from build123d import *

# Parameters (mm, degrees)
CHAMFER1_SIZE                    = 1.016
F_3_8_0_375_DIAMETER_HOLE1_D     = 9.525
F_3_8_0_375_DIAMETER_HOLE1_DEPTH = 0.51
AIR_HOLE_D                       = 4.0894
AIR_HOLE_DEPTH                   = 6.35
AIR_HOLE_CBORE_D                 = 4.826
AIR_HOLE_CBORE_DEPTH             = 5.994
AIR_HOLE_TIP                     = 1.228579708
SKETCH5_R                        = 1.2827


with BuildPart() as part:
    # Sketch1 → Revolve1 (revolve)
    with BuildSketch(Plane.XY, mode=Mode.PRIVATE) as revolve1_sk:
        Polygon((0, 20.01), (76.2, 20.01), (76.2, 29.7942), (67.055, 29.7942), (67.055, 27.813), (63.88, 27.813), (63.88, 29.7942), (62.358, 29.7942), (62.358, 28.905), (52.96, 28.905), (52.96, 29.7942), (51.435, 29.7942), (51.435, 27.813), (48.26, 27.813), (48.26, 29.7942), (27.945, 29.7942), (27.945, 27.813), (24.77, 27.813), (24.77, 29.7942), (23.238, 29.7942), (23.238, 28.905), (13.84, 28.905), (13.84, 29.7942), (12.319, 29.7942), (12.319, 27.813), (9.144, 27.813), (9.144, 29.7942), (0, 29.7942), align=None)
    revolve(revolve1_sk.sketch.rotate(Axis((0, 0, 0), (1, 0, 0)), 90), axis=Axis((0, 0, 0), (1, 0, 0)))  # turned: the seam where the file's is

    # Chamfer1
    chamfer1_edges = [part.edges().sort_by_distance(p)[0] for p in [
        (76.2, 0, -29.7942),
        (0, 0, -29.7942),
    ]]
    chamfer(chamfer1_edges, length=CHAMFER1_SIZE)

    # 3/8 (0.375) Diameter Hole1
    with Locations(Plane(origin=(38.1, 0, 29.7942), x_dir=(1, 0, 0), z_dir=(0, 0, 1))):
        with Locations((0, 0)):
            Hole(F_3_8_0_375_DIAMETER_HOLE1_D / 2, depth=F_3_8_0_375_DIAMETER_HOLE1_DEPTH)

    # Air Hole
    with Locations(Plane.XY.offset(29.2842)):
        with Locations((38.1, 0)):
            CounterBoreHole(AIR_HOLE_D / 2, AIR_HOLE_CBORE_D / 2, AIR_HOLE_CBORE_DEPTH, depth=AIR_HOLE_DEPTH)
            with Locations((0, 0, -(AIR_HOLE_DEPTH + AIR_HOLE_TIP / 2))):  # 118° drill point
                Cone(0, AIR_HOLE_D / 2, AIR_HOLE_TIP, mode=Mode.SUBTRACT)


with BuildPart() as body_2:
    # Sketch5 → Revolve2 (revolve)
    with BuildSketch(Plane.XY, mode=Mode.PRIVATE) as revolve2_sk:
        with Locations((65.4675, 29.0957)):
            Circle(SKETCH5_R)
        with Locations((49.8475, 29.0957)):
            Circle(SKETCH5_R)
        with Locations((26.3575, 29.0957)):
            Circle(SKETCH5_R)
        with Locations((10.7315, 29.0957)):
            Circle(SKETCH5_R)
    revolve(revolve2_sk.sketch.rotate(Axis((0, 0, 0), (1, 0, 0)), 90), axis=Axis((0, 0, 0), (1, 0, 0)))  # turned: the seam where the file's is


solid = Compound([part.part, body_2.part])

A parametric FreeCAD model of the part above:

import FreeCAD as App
import Part
import Sketcher
Q = App.Units.Quantity


def edges_at(feature, points):
    """Names of the edges that pass closest to the given points."""
    edges = feature.Shape.Edges
    near = lambda p: min(range(len(edges)), key=lambda i: edges[i].distToShape(Part.Vertex(*p))[0])
    return sorted({f"Edge{near(p) + 1}" for p in points})

doc = App.newDocument("Part")
params = doc.addObject("Spreadsheet::Sheet", "Params")
for row, (alias, value) in enumerate([
    ("sketch1_width", "3 in"),
    ("sketch1_width2", "0.37 in"),
    ("sketch1_width3", "0.36 in"),
    ("sketch1_width4", "0.125 in"),
    ("sketch1_height", "0.078 in"),
    ("revolution_angle", "360 deg"),
    ("chamfer_size", "0.04 in"),
    ("sketch2_diameter", "0.375 in"),
    ("hole_diameter", "0.375 in"),
    ("hole_depth", "0.51 mm"),
    ("sketch3_diameter", "0.161 in"),
    ("hole2_diameter", "0.161 in"),
    ("hole2_depth", "0.25 in"),
    ("hole2_cbore_diameter", "0.19 in"),
    ("hole2_cbore_depth", "5.994 mm"),
    ("sketch4_diameter", "0.101 in"),
    ("revolution2_angle", "360 deg"),
], start=1):
    params.set(f"A{row}", alias)
    params.set(f"B{row}", "=" + value)
    params.setAlias(f"B{row}", alias)

body = doc.addObject("PartDesign::Body", "Body")

sketch1 = doc.addObject("Sketcher::SketchObject", "Sketch")
body.addObject(sketch1)
sketch1.AttachmentSupport = (doc.XY_Plane, [""])
sketch1.MapMode = "FlatFace"
sketch1.addGeometry(Part.LineSegment(App.Vector(0, 20.01, 0), App.Vector(76.2, 20.01, 0)), False)
sketch1.addGeometry(Part.LineSegment(App.Vector(76.2, 20.01, 0), App.Vector(76.2, 29.7942, 0)), False)
sketch1.addGeometry(Part.LineSegment(App.Vector(76.2, 29.7942, 0), App.Vector(67.055, 29.7942, 0)), False)
sketch1.addGeometry(Part.LineSegment(App.Vector(67.055, 29.7942, 0), App.Vector(67.055, 27.813, 0)), False)
sketch1.addGeometry(Part.LineSegment(App.Vector(67.055, 27.813, 0), App.Vector(63.88, 27.813, 0)), False)
sketch1.addGeometry(Part.LineSegment(App.Vector(63.88, 27.813, 0), App.Vector(63.88, 29.7942, 0)), False)
sketch1.addGeometry(Part.LineSegment(App.Vector(63.88, 29.7942, 0), App.Vector(62.358, 29.7942, 0)), False)
sketch1.addGeometry(Part.LineSegment(App.Vector(62.358, 29.7942, 0), App.Vector(62.358, 28.905, 0)), False)
sketch1.addGeometry(Part.LineSegment(App.Vector(62.358, 28.905, 0), App.Vector(52.96, 28.905, 0)), False)
sketch1.addGeometry(Part.LineSegment(App.Vector(52.96, 28.905, 0), App.Vector(52.96, 29.7942, 0)), False)
sketch1.addGeometry(Part.LineSegment(App.Vector(52.96, 29.7942, 0), App.Vector(51.435, 29.7942, 0)), False)
sketch1.addGeometry(Part.LineSegment(App.Vector(51.435, 29.7942, 0), App.Vector(51.435, 27.813, 0)), False)
sketch1.addGeometry(Part.LineSegment(App.Vector(51.435, 27.813, 0), App.Vector(48.26, 27.813, 0)), False)
sketch1.addGeometry(Part.LineSegment(App.Vector(48.26, 27.813, 0), App.Vector(48.26, 29.7942, 0)), False)
sketch1.addGeometry(Part.LineSegment(App.Vector(48.26, 29.7942, 0), App.Vector(27.945, 29.7942, 0)), False)
sketch1.addGeometry(Part.LineSegment(App.Vector(27.945, 29.7942, 0), App.Vector(27.945, 27.813, 0)), False)
sketch1.addGeometry(Part.LineSegment(App.Vector(27.945, 27.813, 0), App.Vector(24.77, 27.813, 0)), False)
sketch1.addGeometry(Part.LineSegment(App.Vector(24.77, 27.813, 0), App.Vector(24.77, 29.7942, 0)), False)
sketch1.addGeometry(Part.LineSegment(App.Vector(24.77, 29.7942, 0), App.Vector(23.238, 29.7942, 0)), False)
sketch1.addGeometry(Part.LineSegment(App.Vector(23.238, 29.7942, 0), App.Vector(23.238, 28.905, 0)), False)
sketch1.addGeometry(Part.LineSegment(App.Vector(23.238, 28.905, 0), App.Vector(13.84, 28.905, 0)), False)
sketch1.addGeometry(Part.LineSegment(App.Vector(13.84, 28.905, 0), App.Vector(13.84, 29.7942, 0)), False)
sketch1.addGeometry(Part.LineSegment(App.Vector(13.84, 29.7942, 0), App.Vector(12.319, 29.7942, 0)), False)
sketch1.addGeometry(Part.LineSegment(App.Vector(12.319, 29.7942, 0), App.Vector(12.319, 27.813, 0)), False)
sketch1.addGeometry(Part.LineSegment(App.Vector(12.319, 27.813, 0), App.Vector(9.144, 27.813, 0)), False)
sketch1.addGeometry(Part.LineSegment(App.Vector(9.144, 27.813, 0), App.Vector(9.144, 29.7942, 0)), False)
sketch1.addGeometry(Part.LineSegment(App.Vector(9.144, 29.7942, 0), App.Vector(0, 29.7942, 0)), False)
sketch1.addGeometry(Part.LineSegment(App.Vector(0, 29.7942, 0), App.Vector(0, 20.01, 0)), False)
sketch1.addConstraint(Sketcher.Constraint("Coincident", 0, 2, 1, 1))
sketch1.addConstraint(Sketcher.Constraint("Coincident", 1, 2, 2, 1))
sketch1.addConstraint(Sketcher.Constraint("Coincident", 2, 2, 3, 1))
sketch1.addConstraint(Sketcher.Constraint("Coincident", 3, 2, 4, 1))
sketch1.addConstraint(Sketcher.Constraint("Coincident", 4, 2, 5, 1))
sketch1.addConstraint(Sketcher.Constraint("Coincident", 5, 2, 6, 1))
sketch1.addConstraint(Sketcher.Constraint("Coincident", 6, 2, 7, 1))
sketch1.addConstraint(Sketcher.Constraint("Coincident", 7, 2, 8, 1))
sketch1.addConstraint(Sketcher.Constraint("Coincident", 8, 2, 9, 1))
sketch1.addConstraint(Sketcher.Constraint("Coincident", 9, 2, 10, 1))
sketch1.addConstraint(Sketcher.Constraint("Coincident", 10, 2, 11, 1))
sketch1.addConstraint(Sketcher.Constraint("Coincident", 11, 2, 12, 1))
sketch1.addConstraint(Sketcher.Constraint("Coincident", 12, 2, 13, 1))
sketch1.addConstraint(Sketcher.Constraint("Coincident", 13, 2, 14, 1))
sketch1.addConstraint(Sketcher.Constraint("Coincident", 14, 2, 15, 1))
sketch1.addConstraint(Sketcher.Constraint("Coincident", 15, 2, 16, 1))
sketch1.addConstraint(Sketcher.Constraint("Coincident", 16, 2, 17, 1))
sketch1.addConstraint(Sketcher.Constraint("Coincident", 17, 2, 18, 1))
sketch1.addConstraint(Sketcher.Constraint("Coincident", 18, 2, 19, 1))
sketch1.addConstraint(Sketcher.Constraint("Coincident", 19, 2, 20, 1))
sketch1.addConstraint(Sketcher.Constraint("Coincident", 20, 2, 21, 1))
sketch1.addConstraint(Sketcher.Constraint("Coincident", 21, 2, 22, 1))
sketch1.addConstraint(Sketcher.Constraint("Coincident", 22, 2, 23, 1))
sketch1.addConstraint(Sketcher.Constraint("Coincident", 23, 2, 24, 1))
sketch1.addConstraint(Sketcher.Constraint("Coincident", 24, 2, 25, 1))
sketch1.addConstraint(Sketcher.Constraint("Coincident", 25, 2, 26, 1))
sketch1.addConstraint(Sketcher.Constraint("Coincident", 26, 2, 27, 1))
sketch1.addConstraint(Sketcher.Constraint("Coincident", 27, 2, 0, 1))
sketch1.addConstraint(Sketcher.Constraint("Horizontal", 0))
sketch1.addConstraint(Sketcher.Constraint("Vertical", 1))
sketch1.addConstraint(Sketcher.Constraint("Horizontal", 2))
sketch1.addConstraint(Sketcher.Constraint("Vertical", 3))
sketch1.addConstraint(Sketcher.Constraint("Horizontal", 4))
sketch1.addConstraint(Sketcher.Constraint("Vertical", 5))
sketch1.addConstraint(Sketcher.Constraint("Horizontal", 6))
sketch1.addConstraint(Sketcher.Constraint("Vertical", 7))
sketch1.addConstraint(Sketcher.Constraint("Horizontal", 8))
sketch1.addConstraint(Sketcher.Constraint("Vertical", 9))
sketch1.addConstraint(Sketcher.Constraint("Horizontal", 10))
sketch1.addConstraint(Sketcher.Constraint("Vertical", 11))
sketch1.addConstraint(Sketcher.Constraint("Horizontal", 12))
sketch1.addConstraint(Sketcher.Constraint("Vertical", 13))
sketch1.addConstraint(Sketcher.Constraint("Horizontal", 14))
sketch1.addConstraint(Sketcher.Constraint("Vertical", 15))
sketch1.addConstraint(Sketcher.Constraint("Horizontal", 16))
sketch1.addConstraint(Sketcher.Constraint("Vertical", 17))
sketch1.addConstraint(Sketcher.Constraint("Horizontal", 18))
sketch1.addConstraint(Sketcher.Constraint("Vertical", 19))
sketch1.addConstraint(Sketcher.Constraint("Horizontal", 20))
sketch1.addConstraint(Sketcher.Constraint("Vertical", 21))
sketch1.addConstraint(Sketcher.Constraint("Horizontal", 22))
sketch1.addConstraint(Sketcher.Constraint("Vertical", 23))
sketch1.addConstraint(Sketcher.Constraint("Horizontal", 24))
sketch1.addConstraint(Sketcher.Constraint("Vertical", 25))
sketch1.addConstraint(Sketcher.Constraint("Horizontal", 26))
sketch1.addConstraint(Sketcher.Constraint("Vertical", 27))
sketch1.addConstraint(Sketcher.Constraint("PointOnObject", 26, 2, -2))
sketch1.addConstraint(Sketcher.Constraint("Horizontal", 2, 2, 5, 2))
sketch1.addConstraint(Sketcher.Constraint("Horizontal", 6, 2, 9, 2))
sketch1.addConstraint(Sketcher.Constraint("Horizontal", 4, 2, 11, 2))
sketch1.addConstraint(Sketcher.Constraint("Horizontal", 10, 2, 13, 2))
sketch1.addConstraint(Sketcher.Constraint("Horizontal", 12, 2, 15, 2))
sketch1.addConstraint(Sketcher.Constraint("Horizontal", 14, 2, 17, 2))
sketch1.addConstraint(Sketcher.Constraint("Horizontal", 8, 2, 19, 2))
sketch1.addConstraint(Sketcher.Constraint("Horizontal", 18, 2, 21, 2))
sketch1.addConstraint(Sketcher.Constraint("Horizontal", 16, 2, 23, 2))
sketch1.addConstraint(Sketcher.Constraint("Horizontal", 22, 2, 25, 2))
sketch1.addConstraint(Sketcher.Constraint("Equal", 4, 12))
sketch1.addConstraint(Sketcher.Constraint("Equal", 12, 16))
sketch1.addConstraint(Sketcher.Constraint("Equal", 8, 20))
sketch1.addConstraint(Sketcher.Constraint("Equal", 16, 24))
sketch1.addConstraint(Sketcher.Constraint("DistanceX", 0, 1, 0, 2, Q("3 in")))
sketch1.addConstraint(Sketcher.Constraint("DistanceX", 8, 2, 8, 1, Q("0.37 in")))
sketch1.addConstraint(Sketcher.Constraint("DistanceX", 26, 2, 26, 1, Q("0.36 in")))
sketch1.addConstraint(Sketcher.Constraint("DistanceX", -1, 1, 12, 2, Q("1.9 in")))
sketch1.addConstraint(Sketcher.Constraint("DistanceX", 4, 2, 4, 1, Q("0.125 in")))
sketch1.addConstraint(Sketcher.Constraint("DistanceY", 3, 2, 3, 1, Q("0.078 in")))
sketch1.addConstraint(Sketcher.Constraint("DistanceY", -1, 1, 1, 2, Q("1.173 in")))
sketch1.addConstraint(Sketcher.Constraint("DistanceX", 2, 2, 2, 1, 9.145))
sketch1.addConstraint(Sketcher.Constraint("DistanceX", 6, 2, 6, 1, 1.522))
sketch1.addConstraint(Sketcher.Constraint("DistanceX", 14, 2, 14, 1, 20.315))
sketch1.addConstraint(Sketcher.Constraint("DistanceX", 18, 2, 18, 1, 1.532))
sketch1.addConstraint(Sketcher.Constraint("DistanceY", 1, 1, 1, 2, 9.7842))
sketch1.addConstraint(Sketcher.Constraint("DistanceY", 7, 2, 7, 1, 0.8892))
sketch1.setExpression("Constraints[71]", "Params.sketch1_width")
sketch1.setExpression("Constraints[72]", "Params.sketch1_width2")
sketch1.setExpression("Constraints[73]", "Params.sketch1_width3")
sketch1.setExpression("Constraints[75]", "Params.sketch1_width4")
sketch1.setExpression("Constraints[76]", "Params.sketch1_height")
revolution = doc.addObject("PartDesign::Revolution", "Revolution")
body.addObject(revolution)
revolution.Profile = sketch1
revolution.ReferenceAxis = (sketch1, ["H_Axis"])
revolution.setExpression("Angle", "Params.revolution_angle")
doc.recompute()

chamfer = doc.addObject("PartDesign::Chamfer", "Chamfer")
body.addObject(chamfer)
chamfer.Base = (revolution, edges_at(revolution, [(76.2, 0, -29.794), (0, 0, -29.794)]))
chamfer.setExpression("Size", "Params.chamfer_size")

sketch2 = doc.addObject("Sketcher::SketchObject", "Sketch001")
body.addObject(sketch2)
sketch2.AttachmentSupport = (doc.XY_Plane, [""])
sketch2.MapMode = "FlatFace"
sketch2.AttachmentOffset = App.Placement(App.Vector(0, 0, 1.173 * 25.4), App.Rotation())
sketch2.addGeometry(Part.Circle(App.Vector(38.1, 0, 0), App.Vector(0, 0, 1), 4.7625), False)
sketch2.addConstraint(Sketcher.Constraint("PointOnObject", 0, 3, -1))
sketch2.addConstraint(Sketcher.Constraint("Diameter", 0, Q("0.375 in")))
sketch2.addConstraint(Sketcher.Constraint("DistanceX", -1, 1, 0, 3, Q("1.5 in")))
sketch2.setExpression("Constraints[1]", "Params.sketch2_diameter")
doc.recompute()
hole = doc.addObject("PartDesign::Hole", "Hole")
body.addObject(hole)
hole.Profile = sketch2
hole.ThreadType = "None"
hole.setExpression("Diameter", "Params.hole_diameter")
hole.DepthType = "Dimension"
hole.setExpression("Depth", "Params.hole_depth")
hole.DrillPoint = "Flat"

sketch3 = doc.addObject("Sketcher::SketchObject", "Sketch002")
body.addObject(sketch3)
sketch3.AttachmentSupport = (doc.XY_Plane, [""])
sketch3.MapMode = "FlatFace"
sketch3.AttachmentOffset = App.Placement(App.Vector(0, 0, 29.2842), App.Rotation())
sketch3.addGeometry(Part.Circle(App.Vector(38.1, 0, 0), App.Vector(0, 0, 1), 2.0447), False)
sketch3.addConstraint(Sketcher.Constraint("PointOnObject", 0, 3, -1))
sketch3.addConstraint(Sketcher.Constraint("Diameter", 0, Q("0.161 in")))
sketch3.addConstraint(Sketcher.Constraint("DistanceX", -1, 1, 0, 3, Q("1.5 in")))
sketch3.setExpression("Constraints[1]", "Params.sketch3_diameter")
doc.recompute()
hole2 = doc.addObject("PartDesign::Hole", "Hole001")
body.addObject(hole2)
hole2.Profile = sketch3
hole2.ThreadType = "None"
hole2.setExpression("Diameter", "Params.hole2_diameter")
hole2.DepthType = "Dimension"
hole2.setExpression("Depth", "Params.hole2_depth")
hole2.DrillPoint = "Angled"
hole2.DrillPointAngle = 118
hole2.HoleCutType = "Counterbore"
hole2.setExpression("HoleCutDiameter", "Params.hole2_cbore_diameter")
hole2.setExpression("HoleCutDepth", "Params.hole2_cbore_depth")
body2 = doc.addObject("PartDesign::Body", "Body001")
body2.AllowCompound = True

sketch4 = doc.addObject("Sketcher::SketchObject", "Sketch003")
body2.addObject(sketch4)
sketch4.AttachmentSupport = (doc.getObject("XY_Plane001"), [""])
sketch4.MapMode = "FlatFace"
sketch4.addGeometry(Part.Circle(App.Vector(65.4675, 29.0957, 0), App.Vector(0, 0, 1), 1.2827), False)
sketch4.addGeometry(Part.Circle(App.Vector(49.8475, 29.0957, 0), App.Vector(0, 0, 1), 1.2827), False)
sketch4.addGeometry(Part.Circle(App.Vector(26.3575, 29.0957, 0), App.Vector(0, 0, 1), 1.2827), False)
sketch4.addGeometry(Part.Circle(App.Vector(10.7315, 29.0957, 0), App.Vector(0, 0, 1), 1.2827), False)
sketch4.addConstraint(Sketcher.Constraint("Equal", 0, 1))
sketch4.addConstraint(Sketcher.Constraint("Equal", 1, 2))
sketch4.addConstraint(Sketcher.Constraint("Equal", 2, 3))
sketch4.addConstraint(Sketcher.Constraint("Horizontal", 0, 3, 1, 3))
sketch4.addConstraint(Sketcher.Constraint("Horizontal", 1, 3, 2, 3))
sketch4.addConstraint(Sketcher.Constraint("Horizontal", 2, 3, 3, 3))
sketch4.addConstraint(Sketcher.Constraint("Diameter", 0, Q("0.101 in")))
sketch4.addConstraint(Sketcher.Constraint("DistanceX", 3, 3, 1, 3, Q("1.54 in")))
sketch4.addConstraint(Sketcher.Constraint("DistanceY", -1, 1, 0, 3, Q("1.1455 in")))
sketch4.addConstraint(Sketcher.Constraint("DistanceX", -1, 1, 1, 3, Q("1.9625 in")))
sketch4.addConstraint(Sketcher.Constraint("DistanceX", -1, 1, 0, 3, 65.4675))
sketch4.addConstraint(Sketcher.Constraint("DistanceX", -1, 1, 2, 3, 26.3575))
sketch4.setExpression("Constraints[6]", "Params.sketch4_diameter")
revolution2 = doc.addObject("PartDesign::Revolution", "Revolution001")
body2.addObject(revolution2)
revolution2.Profile = sketch4
revolution2.ReferenceAxis = (sketch4, ["H_Axis"])
revolution2.setExpression("Angle", "Params.revolution2_angle")

doc.recompute()
